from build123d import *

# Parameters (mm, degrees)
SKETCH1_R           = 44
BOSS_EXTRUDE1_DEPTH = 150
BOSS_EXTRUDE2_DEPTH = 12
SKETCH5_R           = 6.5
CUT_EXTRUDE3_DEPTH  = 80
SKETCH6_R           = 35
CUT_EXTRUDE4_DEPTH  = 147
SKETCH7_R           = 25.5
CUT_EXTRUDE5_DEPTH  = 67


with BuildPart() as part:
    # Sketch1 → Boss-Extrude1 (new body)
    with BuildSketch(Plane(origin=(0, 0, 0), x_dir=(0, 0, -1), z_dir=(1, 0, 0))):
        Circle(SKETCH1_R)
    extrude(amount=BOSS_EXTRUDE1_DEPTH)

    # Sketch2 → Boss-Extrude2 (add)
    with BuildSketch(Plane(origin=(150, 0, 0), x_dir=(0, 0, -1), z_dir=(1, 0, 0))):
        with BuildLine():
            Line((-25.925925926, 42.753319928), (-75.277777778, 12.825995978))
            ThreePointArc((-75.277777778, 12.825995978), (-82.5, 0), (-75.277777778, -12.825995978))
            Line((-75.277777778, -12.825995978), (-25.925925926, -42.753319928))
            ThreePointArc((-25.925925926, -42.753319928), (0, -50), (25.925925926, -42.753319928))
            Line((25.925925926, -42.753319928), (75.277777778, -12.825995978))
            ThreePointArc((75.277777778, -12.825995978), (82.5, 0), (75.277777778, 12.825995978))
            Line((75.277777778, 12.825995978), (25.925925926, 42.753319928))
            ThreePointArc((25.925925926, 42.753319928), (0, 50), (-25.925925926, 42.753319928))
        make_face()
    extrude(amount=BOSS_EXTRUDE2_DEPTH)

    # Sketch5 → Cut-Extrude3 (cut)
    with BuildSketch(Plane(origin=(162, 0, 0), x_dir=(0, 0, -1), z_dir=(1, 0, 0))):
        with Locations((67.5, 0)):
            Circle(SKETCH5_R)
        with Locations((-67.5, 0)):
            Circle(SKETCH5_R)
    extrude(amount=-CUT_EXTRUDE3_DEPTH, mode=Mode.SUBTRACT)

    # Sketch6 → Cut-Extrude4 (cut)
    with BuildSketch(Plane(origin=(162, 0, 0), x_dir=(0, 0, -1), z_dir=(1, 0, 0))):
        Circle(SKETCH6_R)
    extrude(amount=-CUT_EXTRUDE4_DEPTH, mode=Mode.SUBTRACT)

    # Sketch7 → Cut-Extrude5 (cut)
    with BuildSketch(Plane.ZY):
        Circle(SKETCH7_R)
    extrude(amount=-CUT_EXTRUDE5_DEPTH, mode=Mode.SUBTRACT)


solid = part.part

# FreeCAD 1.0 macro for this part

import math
import FreeCAD as App
import Part
import Sketcher
from FreeCAD import Vector
Q = App.Units.Quantity

doc = App.newDocument("Part")
body = doc.addObject("PartDesign::Body", "Body")

sketch1 = body.newObject("Sketcher::SketchObject", "Sketch")
sketch1.AttachmentSupport = (doc.getObject("YZ_Plane"), [""])
sketch1.MapMode = "FlatFace"
sketch1.addGeometry(Part.Circle(Vector(0, 0, 0), Vector(0, 0, 1), 44), False)
sketch1.addConstraint([
    Sketcher.Constraint("Coincident", 0, 3, -1, 1),
    Sketcher.Constraint("Diameter", 0, Q("88 mm")),
])
pad1 = body.newObject("PartDesign::Pad", "Pad")
pad1.Profile = sketch1
pad1.Length = 150

sketch2 = body.newObject("Sketcher::SketchObject", "Sketch001")
sketch2.AttachmentSupport = (doc.getObject("YZ_Plane"), [""])
sketch2.MapMode = "FlatFace"
sketch2.AttachmentOffset = App.Placement(Vector(0, 0, 150), App.Rotation())
sketch2.addGeometry([
    Part.LineSegment(Vector(43, 26, 0), Vector(13, 75, 0)),
    Part.ArcOfCircle(Part.Circle(Vector(0, 68, 0), Vector(0, 0, 1), 15), math.radians(31), math.radians(149)),
    Part.LineSegment(Vector(-13, 75, 0), Vector(-43, 26, 0)),
    Part.ArcOfCircle(Part.Circle(Vector(0, 0, 0), Vector(0, 0, 1), 50), math.radians(149), math.radians(211)),
    Part.LineSegment(Vector(-43, -26, 0), Vector(-13, -75, 0)),
    Part.ArcOfCircle(Part.Circle(Vector(0, -68, 0), Vector(0, 0, 1), 15), math.radians(-149), math.radians(-31)),
    Part.LineSegment(Vector(13, -75, 0), Vector(43, -26, 0)),
    Part.ArcOfCircle(Part.Circle(Vector(0, 0, 0), Vector(0, 0, 1), 50), math.radians(-31), math.radians(31)),
], False)
sketch2.addConstraint([
    Sketcher.Constraint("Tangent", 0, 2, 1, 1),
    Sketcher.Constraint("Tangent", 1, 2, 2, 1),
    Sketcher.Constraint("Tangent", 2, 2, 3, 1),
    Sketcher.Constraint("Tangent", 3, 2, 4, 1),
    Sketcher.Constraint("Tangent", 4, 2, 5, 1),
    Sketcher.Constraint("Tangent", 5, 2, 6, 1),
    Sketcher.Constraint("Tangent", 6, 2, 7, 1),
    Sketcher.Constraint("Tangent", 7, 2, 0, 1),
    Sketcher.Constraint("Coincident", 3, 3, -1, 1),
    Sketcher.Constraint("Coincident", 7, 3, -1, 1),
    Sketcher.Constraint("Equal", 1, 5),
    Sketcher.Constraint("Equal", 3, 7),
    Sketcher.Constraint("Symmetric", 1, 3, 5, 3, -1, 1),
    Sketcher.Constraint("PointOnObject", 1, 3, -2),
    Sketcher.Constraint("Radius", 1, Q("15 mm")),
    Sketcher.Constraint("Radius", 3, Q("50 mm")),
    Sketcher.Constraint("DistanceY", 5, 3, 1, 3, Q("135 mm")),
])
pad2 = body.newObject("PartDesign::Pad", "Pad001")
pad2.Profile = sketch2
pad2.Length = 12

sketch3 = body.newObject("Sketcher::SketchObject", "Sketch002")
sketch3.AttachmentSupport = (doc.getObject("YZ_Plane"), [""])
sketch3.MapMode = "FlatFace"
sketch3.AttachmentOffset = App.Placement(Vector(0, 0, 162), App.Rotation())
sketch3.addGeometry([
    Part.Circle(Vector(0, -68, 0), Vector(0, 0, 1), 6),
    Part.Circle(Vector(0, 68, 0), Vector(0, 0, 1), 6),
], False)
sketch3.addConstraint([
    Sketcher.Constraint("Equal", 0, 1),
    Sketcher.Constraint("Symmetric", 0, 3, 1, 3, -1, 1),
    Sketcher.Constraint("PointOnObject", 0, 3, -2),
    Sketcher.Constraint("Diameter", 0, Q("13 mm")),
    Sketcher.Constraint("DistanceY", 0, 3, 1, 3, Q("135 mm")),
])
pocket1 = body.newObject("PartDesign::Pocket", "Pocket")
pocket1.Profile = sketch3
pocket1.Length = 80

sketch4 = body.newObject("Sketcher::SketchObject", "Sketch003")
sketch4.AttachmentSupport = (doc.getObject("YZ_Plane"), [""])
sketch4.MapMode = "FlatFace"
sketch4.AttachmentOffset = App.Placement(Vector(0, 0, 162), App.Rotation())
sketch4.addGeometry(Part.Circle(Vector(0, 0, 0), Vector(0, 0, 1), 35), False)
sketch4.addConstraint([
    Sketcher.Constraint("Coincident", 0, 3, -1, 1),
    Sketcher.Constraint("Diameter", 0, Q("70 mm")),
])
pocket2 = body.newObject("PartDesign::Pocket", "Pocket001")
pocket2.Profile = sketch4
pocket2.Length = 147

sketch5 = body.newObject("Sketcher::SketchObject", "Sketch004")
sketch5.AttachmentSupport = (doc.getObject("YZ_Plane"), [""])
sketch5.MapMode = "FlatFace"
sketch5.addGeometry(Part.Circle(Vector(0, 0, 0), Vector(0, 0, 1), 26), False)
sketch5.addConstraint([
    Sketcher.Constraint("Coincident", 0, 3, -1, 1),
    Sketcher.Constraint("Diameter", 0, Q("51 mm")),
])
pocket3 = body.newObject("PartDesign::Pocket", "Pocket002")
pocket3.Profile = sketch5
pocket3.Length = 67
pocket3.Reversed = True

doc.recompute()
